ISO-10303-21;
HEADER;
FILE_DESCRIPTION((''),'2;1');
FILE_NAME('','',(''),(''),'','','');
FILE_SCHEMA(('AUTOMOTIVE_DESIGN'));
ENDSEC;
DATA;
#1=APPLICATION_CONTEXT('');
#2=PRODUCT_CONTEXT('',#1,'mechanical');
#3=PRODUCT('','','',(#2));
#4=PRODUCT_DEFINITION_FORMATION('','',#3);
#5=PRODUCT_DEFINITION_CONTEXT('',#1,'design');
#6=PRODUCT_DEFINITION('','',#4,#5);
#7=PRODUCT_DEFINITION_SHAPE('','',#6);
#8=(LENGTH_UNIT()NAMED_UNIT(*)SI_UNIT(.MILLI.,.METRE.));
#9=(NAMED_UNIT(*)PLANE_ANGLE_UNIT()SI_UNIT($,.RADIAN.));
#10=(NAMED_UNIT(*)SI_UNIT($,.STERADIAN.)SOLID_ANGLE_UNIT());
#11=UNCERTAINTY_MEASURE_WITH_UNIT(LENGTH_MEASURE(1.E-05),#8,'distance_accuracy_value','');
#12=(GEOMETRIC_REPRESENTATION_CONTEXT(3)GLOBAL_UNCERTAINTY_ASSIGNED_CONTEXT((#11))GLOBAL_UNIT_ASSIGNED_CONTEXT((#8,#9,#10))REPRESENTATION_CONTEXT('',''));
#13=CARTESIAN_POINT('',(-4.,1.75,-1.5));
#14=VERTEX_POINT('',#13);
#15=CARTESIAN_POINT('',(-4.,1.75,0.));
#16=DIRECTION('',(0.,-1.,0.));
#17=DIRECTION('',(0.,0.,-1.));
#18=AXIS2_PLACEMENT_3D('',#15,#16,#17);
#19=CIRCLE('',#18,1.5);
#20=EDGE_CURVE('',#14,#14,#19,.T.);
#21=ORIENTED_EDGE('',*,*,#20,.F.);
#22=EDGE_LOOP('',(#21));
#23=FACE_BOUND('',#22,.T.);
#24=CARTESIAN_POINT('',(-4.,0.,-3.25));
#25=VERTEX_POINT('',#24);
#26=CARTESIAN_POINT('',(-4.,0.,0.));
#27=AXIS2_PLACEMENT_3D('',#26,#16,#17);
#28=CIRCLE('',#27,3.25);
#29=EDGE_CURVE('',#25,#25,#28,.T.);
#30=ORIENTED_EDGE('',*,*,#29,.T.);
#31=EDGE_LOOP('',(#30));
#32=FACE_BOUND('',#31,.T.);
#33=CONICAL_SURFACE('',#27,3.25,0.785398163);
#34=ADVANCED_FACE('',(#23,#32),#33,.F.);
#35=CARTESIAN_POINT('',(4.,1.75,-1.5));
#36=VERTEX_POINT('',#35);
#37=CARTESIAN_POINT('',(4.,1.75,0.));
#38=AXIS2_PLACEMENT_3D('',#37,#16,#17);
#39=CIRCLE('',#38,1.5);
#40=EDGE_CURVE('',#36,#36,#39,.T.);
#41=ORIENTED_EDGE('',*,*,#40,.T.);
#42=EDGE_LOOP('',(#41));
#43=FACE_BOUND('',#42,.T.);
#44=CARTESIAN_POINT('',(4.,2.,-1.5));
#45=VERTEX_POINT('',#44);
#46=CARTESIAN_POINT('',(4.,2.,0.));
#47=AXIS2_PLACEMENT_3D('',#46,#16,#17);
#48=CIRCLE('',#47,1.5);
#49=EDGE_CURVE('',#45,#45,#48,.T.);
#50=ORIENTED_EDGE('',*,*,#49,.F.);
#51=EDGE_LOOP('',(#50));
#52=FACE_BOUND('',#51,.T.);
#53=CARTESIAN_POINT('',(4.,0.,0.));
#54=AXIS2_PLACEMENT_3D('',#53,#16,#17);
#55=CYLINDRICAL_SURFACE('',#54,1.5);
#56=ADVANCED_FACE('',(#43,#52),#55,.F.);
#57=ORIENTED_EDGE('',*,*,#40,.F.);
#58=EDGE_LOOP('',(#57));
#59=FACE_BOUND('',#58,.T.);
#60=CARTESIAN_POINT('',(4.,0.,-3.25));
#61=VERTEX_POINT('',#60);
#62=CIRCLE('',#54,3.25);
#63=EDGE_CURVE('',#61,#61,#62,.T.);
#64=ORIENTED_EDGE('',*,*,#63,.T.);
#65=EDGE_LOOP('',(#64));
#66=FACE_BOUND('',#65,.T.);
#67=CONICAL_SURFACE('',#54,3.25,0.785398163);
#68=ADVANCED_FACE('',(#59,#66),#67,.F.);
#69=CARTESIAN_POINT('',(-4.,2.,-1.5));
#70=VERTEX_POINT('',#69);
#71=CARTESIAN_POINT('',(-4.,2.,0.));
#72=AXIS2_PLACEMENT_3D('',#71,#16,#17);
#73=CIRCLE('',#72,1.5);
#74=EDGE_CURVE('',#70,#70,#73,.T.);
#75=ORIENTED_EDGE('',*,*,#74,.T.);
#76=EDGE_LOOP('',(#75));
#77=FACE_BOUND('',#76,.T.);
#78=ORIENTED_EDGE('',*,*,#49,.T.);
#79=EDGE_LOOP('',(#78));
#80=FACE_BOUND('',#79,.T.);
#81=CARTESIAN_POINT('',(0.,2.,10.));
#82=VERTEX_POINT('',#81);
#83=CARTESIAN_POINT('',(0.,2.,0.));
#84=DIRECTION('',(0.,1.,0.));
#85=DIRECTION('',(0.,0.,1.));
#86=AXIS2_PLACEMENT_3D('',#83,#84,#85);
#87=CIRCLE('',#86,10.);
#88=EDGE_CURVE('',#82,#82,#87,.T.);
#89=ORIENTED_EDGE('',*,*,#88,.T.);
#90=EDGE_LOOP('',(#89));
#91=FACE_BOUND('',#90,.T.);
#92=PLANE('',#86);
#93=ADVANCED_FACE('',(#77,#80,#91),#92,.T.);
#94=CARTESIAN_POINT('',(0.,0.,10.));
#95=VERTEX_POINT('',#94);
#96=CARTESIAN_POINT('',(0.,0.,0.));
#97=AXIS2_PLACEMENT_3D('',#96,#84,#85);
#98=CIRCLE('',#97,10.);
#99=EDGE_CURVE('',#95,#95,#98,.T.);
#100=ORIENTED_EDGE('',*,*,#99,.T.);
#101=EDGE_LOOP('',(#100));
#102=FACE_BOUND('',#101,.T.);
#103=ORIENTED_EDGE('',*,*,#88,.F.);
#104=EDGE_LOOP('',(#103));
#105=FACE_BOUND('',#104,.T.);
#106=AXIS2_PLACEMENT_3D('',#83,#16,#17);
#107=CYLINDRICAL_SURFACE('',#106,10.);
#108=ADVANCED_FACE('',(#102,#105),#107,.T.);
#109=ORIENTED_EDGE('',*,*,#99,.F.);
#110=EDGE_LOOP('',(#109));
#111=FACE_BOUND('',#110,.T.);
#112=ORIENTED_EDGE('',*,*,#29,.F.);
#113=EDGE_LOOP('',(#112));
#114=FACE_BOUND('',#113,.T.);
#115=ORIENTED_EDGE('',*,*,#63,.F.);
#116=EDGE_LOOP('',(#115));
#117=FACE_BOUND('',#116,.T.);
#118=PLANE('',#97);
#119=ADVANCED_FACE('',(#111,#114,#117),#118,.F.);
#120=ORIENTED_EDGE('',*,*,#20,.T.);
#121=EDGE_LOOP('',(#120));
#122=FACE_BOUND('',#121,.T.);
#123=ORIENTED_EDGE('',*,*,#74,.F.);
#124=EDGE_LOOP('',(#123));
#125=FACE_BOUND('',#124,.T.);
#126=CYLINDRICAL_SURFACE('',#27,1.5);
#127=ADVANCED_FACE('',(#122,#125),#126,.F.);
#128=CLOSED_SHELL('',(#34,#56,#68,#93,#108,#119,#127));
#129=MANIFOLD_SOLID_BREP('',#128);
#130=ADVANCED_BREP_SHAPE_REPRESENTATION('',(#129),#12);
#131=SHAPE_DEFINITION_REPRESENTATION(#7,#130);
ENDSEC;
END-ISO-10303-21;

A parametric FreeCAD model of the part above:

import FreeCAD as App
import Part
import Sketcher

V = App.Vector
Q = App.Units.Quantity


def add_polygon(sketch, points):
    """Adds a closed chain of lines whose ends are joined by coincident constraints."""
    first, n = sketch.GeometryCount, len(points)
    for a, b in zip(points, points[1:] + points[:1]):
        sketch.addGeometry(Part.LineSegment(App.Vector(*a, 0), App.Vector(*b, 0)), False)
    for i in range(n):
        sketch.addConstraint(Sketcher.Constraint("Coincident", first + i, 2, first + (i + 1) % n, 1))

doc = App.newDocument("Part")
params = doc.addObject("Spreadsheet::Sheet", "Params")
for row, (alias, value) in enumerate([
    ("sketch1_diameter", "20 mm"),
    ("pad1_length", "2 mm"),
    ("sketch2_width", "2 mm"),
    ("sketch2_height", "1.5 mm"),
    ("sketch2_width2", "0.25 mm"),
    ("groove_angle", "360 deg"),
    ("linearpattern_pitch", "8 mm"),
], start=1):
    params.set(f"A{row}", alias)
    params.set(f"B{row}", "=" + value)
    params.setAlias(f"B{row}", alias)

body = doc.addObject("PartDesign::Body", "Body")

# Sketch on XZ plane
sketch1 = body.newObject("Sketcher::SketchObject", "Sketch")
sketch1.AttachmentSupport = (doc.getObject("XZ_Plane"), [""])
sketch1.MapMode = "FlatFace"
sketch1.addGeometry(Part.Circle(V(0, 0, 0), V(0, 0, 1), 10), False)
sketch1.addConstraint(Sketcher.Constraint("Coincident", 0, 3, -1, 1))
sketch1.addConstraint(Sketcher.Constraint("Diameter", 0, 20.0))
sketch1.setExpression("Constraints[1]", "Params.sketch1_diameter")
pad1 = body.newObject("PartDesign::Pad", "Pad")
pad1.Profile = sketch1
pad1.setExpression("Length", "Params.pad1_length")
pad1.Reversed = True

# Sketch on YZ plane
sketch2 = body.newObject("Sketcher::SketchObject", "Sketch001")
sketch2.AttachmentSupport = (doc.getObject("YZ_Plane"), [""])
sketch2.MapMode = "FlatFace"
sketch2.AttachmentOffset = App.Placement(V(0, 0, 4), App.Rotation())
add_polygon(sketch2, [(2, 0), (0, 0), (0, -3.25), (1.75, -1.5), (2, -1.5)])  # lines 0-4
sketch2.addConstraint(Sketcher.Constraint("Horizontal", 0))
sketch2.addConstraint(Sketcher.Constraint("Vertical", 1))
sketch2.addConstraint(Sketcher.Constraint("Horizontal", 3))
sketch2.addConstraint(Sketcher.Constraint("Vertical", 4))
sketch2.addConstraint(Sketcher.Constraint("Coincident", 0, 2, -1, 1))
sketch2.addConstraint(Sketcher.Constraint("DistanceX", 0, 2, 0, 1, 2.0))
sketch2.addConstraint(Sketcher.Constraint("Angle", 2, Q("45 deg")))
sketch2.addConstraint(Sketcher.Constraint("DistanceY", 4, 1, 4, 2, 1.5))
sketch2.addConstraint(Sketcher.Constraint("DistanceX", 3, 1, 3, 2, 0.25))
sketch2.setExpression("Constraints[10]", "Params.sketch2_width")
sketch2.setExpression("Constraints[12]", "Params.sketch2_height")
sketch2.setExpression("Constraints[13]", "Params.sketch2_width2")
groove = body.newObject("PartDesign::Groove", "Groove")
groove.Profile = sketch2
groove.ReferenceAxis = (sketch2, ["H_Axis"])
groove.setExpression("Angle", "Params.groove_angle")
doc.recompute()

linearpattern = body.newObject("PartDesign::LinearPattern", "LinearPattern")
linearpattern.Originals = [groove]
linearpattern.Direction = (doc.getObject("X_Axis"), [""])
linearpattern.Mode = "offset"
linearpattern.setExpression("Offset", "Params.linearpattern_pitch")
linearpattern.Occurrences = 2
linearpattern.Reversed = True
body.Tip = linearpattern

doc.recompute()
